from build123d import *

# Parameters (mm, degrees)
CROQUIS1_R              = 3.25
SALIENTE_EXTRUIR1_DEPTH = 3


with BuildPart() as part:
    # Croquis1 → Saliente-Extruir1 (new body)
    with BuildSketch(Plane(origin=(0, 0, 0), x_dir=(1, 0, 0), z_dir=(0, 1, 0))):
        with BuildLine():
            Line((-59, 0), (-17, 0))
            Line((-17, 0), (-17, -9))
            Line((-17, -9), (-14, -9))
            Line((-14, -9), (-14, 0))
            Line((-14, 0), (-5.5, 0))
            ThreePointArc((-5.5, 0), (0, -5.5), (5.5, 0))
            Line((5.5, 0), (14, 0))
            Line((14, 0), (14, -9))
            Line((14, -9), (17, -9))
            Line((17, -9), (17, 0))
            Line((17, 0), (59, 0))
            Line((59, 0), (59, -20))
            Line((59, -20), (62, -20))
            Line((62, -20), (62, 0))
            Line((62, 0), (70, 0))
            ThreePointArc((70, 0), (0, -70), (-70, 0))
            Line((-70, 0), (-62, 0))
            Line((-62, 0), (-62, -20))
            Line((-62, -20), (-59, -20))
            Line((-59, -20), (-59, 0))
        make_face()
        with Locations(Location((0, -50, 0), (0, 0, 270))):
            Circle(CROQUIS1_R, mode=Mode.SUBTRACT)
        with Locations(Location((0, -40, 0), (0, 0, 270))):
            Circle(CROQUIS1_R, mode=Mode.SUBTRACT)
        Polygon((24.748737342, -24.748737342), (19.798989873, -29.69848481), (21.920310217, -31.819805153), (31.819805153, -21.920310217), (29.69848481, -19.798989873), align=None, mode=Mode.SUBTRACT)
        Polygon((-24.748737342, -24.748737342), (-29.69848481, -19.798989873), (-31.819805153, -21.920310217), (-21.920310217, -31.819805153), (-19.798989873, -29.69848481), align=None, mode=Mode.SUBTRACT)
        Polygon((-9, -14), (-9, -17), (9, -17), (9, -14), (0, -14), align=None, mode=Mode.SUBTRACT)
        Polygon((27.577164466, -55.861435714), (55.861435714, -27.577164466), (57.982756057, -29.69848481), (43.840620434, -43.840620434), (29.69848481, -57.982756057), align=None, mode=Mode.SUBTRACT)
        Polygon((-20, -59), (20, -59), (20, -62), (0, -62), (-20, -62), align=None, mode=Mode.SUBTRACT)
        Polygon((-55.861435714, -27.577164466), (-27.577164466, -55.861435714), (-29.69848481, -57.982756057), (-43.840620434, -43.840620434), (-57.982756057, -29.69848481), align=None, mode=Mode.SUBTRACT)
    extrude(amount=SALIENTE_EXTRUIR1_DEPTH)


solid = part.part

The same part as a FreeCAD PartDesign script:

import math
import FreeCAD as App
import Part
import Sketcher

doc = App.newDocument("Part")
params = doc.addObject("Spreadsheet::Sheet", "Params")
for row, (alias, value) in enumerate([
    ("sketch1_radius", "70 mm"),
    ("sketch1_diameter", "6.5 mm"),
    ("sketch1_radius2", "5.5 mm"),
    ("sketch1_width", "42 mm"),
    ("sketch1_width2", "3 mm"),
    ("pad1_length", "3 mm"),
], start=1):
    params.set(f"A{row}", alias)
    params.set(f"B{row}", "=" + value)
    params.setAlias(f"B{row}", alias)

body = doc.addObject("PartDesign::Body", "Body")

sketch1 = body.newObject("Sketcher::SketchObject", "Sketch")
sketch1.AttachmentSupport = (doc.getObject("XZ_Plane"), [""])
sketch1.MapMode = "FlatFace"
sketch1.addGeometry([
    Part.LineSegment(App.Vector(-17, 0, 0), App.Vector(-59, 0, 0)),
    Part.LineSegment(App.Vector(-59, 0, 0), App.Vector(-59, 20, 0)),
    Part.LineSegment(App.Vector(-59, 20, 0), App.Vector(-62, 20, 0)),
    Part.LineSegment(App.Vector(-62, 20, 0), App.Vector(-62, 0, 0)),
    Part.LineSegment(App.Vector(-62, 0, 0), App.Vector(-70, 0, 0)),
    Part.ArcOfCircle(Part.Circle(App.Vector(0, 0, 0), App.Vector(0, 0, 1), 70), math.radians(0), math.radians(180)),
    Part.LineSegment(App.Vector(70, 0, 0), App.Vector(62, 0, 0)),
    Part.LineSegment(App.Vector(62, 0, 0), App.Vector(62, 20, 0)),
    Part.LineSegment(App.Vector(62, 20, 0), App.Vector(59, 20, 0)),
    Part.LineSegment(App.Vector(59, 20, 0), App.Vector(59, 0, 0)),
    Part.LineSegment(App.Vector(59, 0, 0), App.Vector(17, 0, 0)),
    Part.LineSegment(App.Vector(17, 0, 0), App.Vector(17, 9, 0)),
    Part.LineSegment(App.Vector(17, 9, 0), App.Vector(14, 9, 0)),
    Part.LineSegment(App.Vector(14, 9, 0), App.Vector(14, 0, 0)),
    Part.LineSegment(App.Vector(14, 0, 0), App.Vector(5.5, 0, 0)),
    Part.ArcOfCircle(Part.Circle(App.Vector(0, 0, 0), App.Vector(0, 0, 1), 5.5), math.radians(0), math.radians(180)),
    Part.LineSegment(App.Vector(-5.5, 0, 0), App.Vector(-14, 0, 0)),
    Part.LineSegment(App.Vector(-14, 0, 0), App.Vector(-14, 9, 0)),
    Part.LineSegment(App.Vector(-14, 9, 0), App.Vector(-17, 9, 0)),
    Part.LineSegment(App.Vector(-17, 9, 0), App.Vector(-17, 0, 0)),
    Part.LineSegment(App.Vector(27.6, 55.9, 0), App.Vector(55.9, 27.6, 0)),
    Part.LineSegment(App.Vector(55.9, 27.6, 0), App.Vector(58, 29.7, 0)),
    Part.LineSegment(App.Vector(58, 29.7, 0), App.Vector(43.8, 43.8, 0)),
    Part.LineSegment(App.Vector(43.8, 43.8, 0), App.Vector(29.7, 58, 0)),
    Part.LineSegment(App.Vector(29.7, 58, 0), App.Vector(27.6, 55.9, 0)),
    Part.LineSegment(App.Vector(-20, 59, 0), App.Vector(20, 59, 0)),
    Part.LineSegment(App.Vector(20, 59, 0), App.Vector(20, 62, 0)),
    Part.LineSegment(App.Vector(20, 62, 0), App.Vector(-20, 62, 0)),
    Part.LineSegment(App.Vector(-20, 62, 0), App.Vector(-20, 59, 0)),
    Part.Circle(App.Vector(0, 50, 0), App.Vector(0, 0, 1), 3.2),
    Part.Circle(App.Vector(0, 40, 0), App.Vector(0, 0, 1), 3.2),
    Part.LineSegment(App.Vector(-55.9, 27.6, 0), App.Vector(-27.6, 55.9, 0)),
    Part.LineSegment(App.Vector(-27.6, 55.9, 0), App.Vector(-29.7, 58, 0)),
    Part.LineSegment(App.Vector(-29.7, 58, 0), App.Vector(-43.8, 43.8, 0)),
    Part.LineSegment(App.Vector(-43.8, 43.8, 0), App.Vector(-58, 29.7, 0)),
    Part.LineSegment(App.Vector(-58, 29.7, 0), App.Vector(-55.9, 27.6, 0)),
    Part.LineSegment(App.Vector(24.7, 24.7, 0), App.Vector(29.7, 19.8, 0)),
    Part.LineSegment(App.Vector(29.7, 19.8, 0), App.Vector(31.8, 21.9, 0)),
    Part.LineSegment(App.Vector(31.8, 21.9, 0), App.Vector(21.9, 31.8, 0)),
    Part.LineSegment(App.Vector(21.9, 31.8, 0), App.Vector(19.8, 29.7, 0)),
    Part.LineSegment(App.Vector(19.8, 29.7, 0), App.Vector(24.7, 24.7, 0)),
    Part.LineSegment(App.Vector(-24.7, 24.7, 0), App.Vector(-19.8, 29.7, 0)),
    Part.LineSegment(App.Vector(-19.8, 29.7, 0), App.Vector(-21.9, 31.8, 0)),
    Part.LineSegment(App.Vector(-21.9, 31.8, 0), App.Vector(-31.8, 21.9, 0)),
    Part.LineSegment(App.Vector(-31.8, 21.9, 0), App.Vector(-29.7, 19.8, 0)),
    Part.LineSegment(App.Vector(-29.7, 19.8, 0), App.Vector(-24.7, 24.7, 0)),
    Part.LineSegment(App.Vector(-9, 14, 0), App.Vector(9, 14, 0)),
    Part.LineSegment(App.Vector(9, 14, 0), App.Vector(9, 17, 0)),
    Part.LineSegment(App.Vector(9, 17, 0), App.Vector(-9, 17, 0)),
    Part.LineSegment(App.Vector(-9, 17, 0), App.Vector(-9, 14, 0)),
], False)
sketch1.addConstraint([
    Sketcher.Constraint("Coincident", 0, 2, 1, 1),
    Sketcher.Constraint("Coincident", 1, 2, 2, 1),
    Sketcher.Constraint("Coincident", 2, 2, 3, 1),
    Sketcher.Constraint("Coincident", 3, 2, 4, 1),
    Sketcher.Constraint("Coincident", 4, 2, 5, 2),
    Sketcher.Constraint("Coincident", 5, 1, 6, 1),
    Sketcher.Constraint("Coincident", 6, 2, 7, 1),
    Sketcher.Constraint("Coincident", 7, 2, 8, 1),
    Sketcher.Constraint("Coincident", 8, 2, 9, 1),
    Sketcher.Constraint("Coincident", 9, 2, 10, 1),
    Sketcher.Constraint("Coincident", 10, 2, 11, 1),
    Sketcher.Constraint("Coincident", 11, 2, 12, 1),
    Sketcher.Constraint("Coincident", 12, 2, 13, 1),
    Sketcher.Constraint("Coincident", 13, 2, 14, 1),
    Sketcher.Constraint("Coincident", 14, 2, 15, 1),
    Sketcher.Constraint("Coincident", 15, 2, 16, 1),
    Sketcher.Constraint("Coincident", 16, 2, 17, 1),
    Sketcher.Constraint("Coincident", 17, 2, 18, 1),
    Sketcher.Constraint("Coincident", 18, 2, 19, 1),
    Sketcher.Constraint("Coincident", 19, 2, 0, 1),
    Sketcher.Constraint("Coincident", 20, 2, 21, 1),
    Sketcher.Constraint("Coincident", 21, 2, 22, 1),
    Sketcher.Constraint("Coincident", 22, 2, 23, 1),
    Sketcher.Constraint("Coincident", 23, 2, 24, 1),
    Sketcher.Constraint("Coincident", 24, 2, 20, 1),
    Sketcher.Constraint("Coincident", 25, 2, 26, 1),
    Sketcher.Constraint("Coincident", 26, 2, 27, 1),
    Sketcher.Constraint("Coincident", 27, 2, 28, 1),
    Sketcher.Constraint("Coincident", 28, 2, 25, 1),
    Sketcher.Constraint("Coincident", 31, 2, 32, 1),
    Sketcher.Constraint("Coincident", 32, 2, 33, 1),
    Sketcher.Constraint("Coincident", 33, 2, 34, 1),
    Sketcher.Constraint("Coincident", 34, 2, 35, 1),
    Sketcher.Constraint("Coincident", 35, 2, 31, 1),
    Sketcher.Constraint("Coincident", 36, 2, 37, 1),
    Sketcher.Constraint("Coincident", 37, 2, 38, 1),
    Sketcher.Constraint("Coincident", 38, 2, 39, 1),
    Sketcher.Constraint("Coincident", 39, 2, 40, 1),
    Sketcher.Constraint("Coincident", 40, 2, 36, 1),
    Sketcher.Constraint("Coincident", 41, 2, 42, 1),
    Sketcher.Constraint("Coincident", 42, 2, 43, 1),
    Sketcher.Constraint("Coincident", 43, 2, 44, 1),
    Sketcher.Constraint("Coincident", 44, 2, 45, 1),
    Sketcher.Constraint("Coincident", 45, 2, 41, 1),
    Sketcher.Constraint("Coincident", 46, 2, 47, 1),
    Sketcher.Constraint("Coincident", 47, 2, 48, 1),
    Sketcher.Constraint("Coincident", 48, 2, 49, 1),
    Sketcher.Constraint("Coincident", 49, 2, 46, 1),
    Sketcher.Constraint("Horizontal", 0),
    Sketcher.Constraint("Vertical", 1),
    Sketcher.Constraint("Horizontal", 2),
    Sketcher.Constraint("Vertical", 3),
    Sketcher.Constraint("Horizontal", 4),
    Sketcher.Constraint("Horizontal", 6),
    Sketcher.Constraint("Vertical", 7),
    Sketcher.Constraint("Horizontal", 8),
    Sketcher.Constraint("Vertical", 9),
    Sketcher.Constraint("Horizontal", 10),
    Sketcher.Constraint("Vertical", 11),
    Sketcher.Constraint("Horizontal", 12),
    Sketcher.Constraint("Vertical", 13),
    Sketcher.Constraint("Horizontal", 14),
    Sketcher.Constraint("Horizontal", 16),
    Sketcher.Constraint("Vertical", 17),
    Sketcher.Constraint("Horizontal", 18),
    Sketcher.Constraint("Vertical", 19),
    Sketcher.Constraint("Horizontal", 25),
    Sketcher.Constraint("Vertical", 26),
    Sketcher.Constraint("Horizontal", 27),
    Sketcher.Constraint("Vertical", 28),
    Sketcher.Constraint("Horizontal", 46),
    Sketcher.Constraint("Vertical", 47),
    Sketcher.Constraint("Horizontal", 48),
    Sketcher.Constraint("Vertical", 49),
    Sketcher.Constraint("Coincident", 5, 3, -1, 1),
    Sketcher.Constraint("Coincident", 15, 3, -1, 1),
    Sketcher.Constraint("Equal", 29, 30),
    Sketcher.Constraint("Symmetric", 3, 2, 6, 2, -1, 1),
    Sketcher.Constraint("Symmetric", 0, 2, 9, 2, -1, 1),
    Sketcher.Constraint("Symmetric", 13, 2, 16, 2, -1, 1),
    Sketcher.Constraint("Symmetric", 11, 2, 18, 2, -2),
    Sketcher.Constraint("Symmetric", 24, 2, 31, 2, -2),
    Sketcher.Constraint("Symmetric", 23, 2, 32, 2, -2),
    Sketcher.Constraint("Symmetric", 22, 2, 33, 2, -2),
    Sketcher.Constraint("Symmetric", 21, 2, 34, 2, -2),
    Sketcher.Constraint("Symmetric", 20, 2, 35, 2, -2),
    Sketcher.Constraint("Symmetric", 39, 2, 41, 2, -2),
    Sketcher.Constraint("Symmetric", 38, 2, 42, 2, -2),
    Sketcher.Constraint("Symmetric", 37, 2, 43, 2, -2),
    Sketcher.Constraint("Symmetric", 36, 2, 44, 2, -2),
    Sketcher.Constraint("Symmetric", 40, 2, 45, 2, -2),
    Sketcher.Constraint("PointOnObject", 29, 3, -2),
    Sketcher.Constraint("PointOnObject", 30, 3, -2),
    Sketcher.Constraint("PointOnObject", 0, 2, -1),
    Sketcher.Constraint("PointOnObject", 3, 2, -1),
    Sketcher.Constraint("PointOnObject", 13, 2, -1),
    Sketcher.Constraint("Perpendicular", 20, 21),
    Sketcher.Constraint("Perpendicular", 21, 22),
    Sketcher.Constraint("Parallel", 22, 23),
    Sketcher.Constraint("Perpendicular", 23, 24),
    Sketcher.Constraint("Parallel", 24, 31),
    Sketcher.Constraint("Parallel", 35, 36),
    Sketcher.Constraint("Perpendicular", 36, 37),
    Sketcher.Constraint("Perpendicular", 37, 38),
    Sketcher.Constraint("Perpendicular", 38, 39),
    Sketcher.Constraint("Perpendicular", 39, 40),
    Sketcher.Constraint("Horizontal", 2, 2, 7, 2),
    Sketcher.Constraint("Horizontal", 34, 2, 39, 2),
    Sketcher.Constraint("Vertical", 23, 2, 36, 2),
    Sketcher.Constraint("Equal", 8, 12),
    Sketcher.Constraint("Equal", 18, 26),
    Sketcher.Constraint("Equal", 28, 47),
    Sketcher.Constraint("Equal", 22, 23),
    Sketcher.Constraint("Equal", 35, 37),
    Sketcher.Constraint("Equal", 36, 40),
    Sketcher.Constraint("Radius", 5, 70.0),
    Sketcher.Constraint("Diameter", 29, 6.5),
    Sketcher.Constraint("Radius", 15, 5.5),
    Sketcher.Constraint("DistanceX", 0, 2, 0, 1, 42.0),
    Sketcher.Constraint("DistanceX", 2, 2, 2, 1, 3.0),
    Sketcher.Constraint("DistanceX", 4, 2, 4, 1, 8.0),
    Sketcher.Constraint("DistanceX", 25, 1, 25, 2, 40.0),
    Sketcher.Constraint("DistanceX", 46, 1, 46, 2, 18.0),
    Sketcher.Constraint("DistanceY", 1, 1, 1, 2, 20.0),
    Sketcher.Constraint("DistanceY", 11, 1, 11, 2, 9.0),
    Sketcher.Constraint("Distance", 20, 40.0),
    Sketcher.Constraint("Distance", 21, 3.0),
    Sketcher.Constraint("Distance", 36, 7.0),
    Sketcher.Constraint("DistanceY", -1, 1, 29, 3, 50.0),
    Sketcher.Constraint("DistanceY", -1, 1, 30, 3, 40.0),
    Sketcher.Constraint("DistanceX", -1, 1, 25, 2, 20.0),
    Sketcher.Constraint("DistanceY", -1, 1, 25, 2, 59.0),
    Sketcher.Constraint("DistanceX", -1, 1, 46, 2, 9.0),
    Sketcher.Constraint("DistanceY", -1, 1, 46, 2, 14.0),
    Sketcher.Constraint("DistanceX", -1, 1, 22, 2, 43.84062),
    Sketcher.Constraint("DistanceY", -1, 1, 22, 2, 43.84062),
])
sketch1.setExpression("Constraints[115]", "Params.sketch1_radius")
sketch1.setExpression("Constraints[116]", "Params.sketch1_diameter")
sketch1.setExpression("Constraints[117]", "Params.sketch1_radius2")
sketch1.setExpression("Constraints[118]", "Params.sketch1_width")
sketch1.setExpression("Constraints[119]", "Params.sketch1_width2")
pad1 = body.newObject("PartDesign::Pad", "Pad")
pad1.Profile = sketch1
pad1.setExpression("Length", "Params.pad1_length")
pad1.Reversed = True

doc.recompute()
